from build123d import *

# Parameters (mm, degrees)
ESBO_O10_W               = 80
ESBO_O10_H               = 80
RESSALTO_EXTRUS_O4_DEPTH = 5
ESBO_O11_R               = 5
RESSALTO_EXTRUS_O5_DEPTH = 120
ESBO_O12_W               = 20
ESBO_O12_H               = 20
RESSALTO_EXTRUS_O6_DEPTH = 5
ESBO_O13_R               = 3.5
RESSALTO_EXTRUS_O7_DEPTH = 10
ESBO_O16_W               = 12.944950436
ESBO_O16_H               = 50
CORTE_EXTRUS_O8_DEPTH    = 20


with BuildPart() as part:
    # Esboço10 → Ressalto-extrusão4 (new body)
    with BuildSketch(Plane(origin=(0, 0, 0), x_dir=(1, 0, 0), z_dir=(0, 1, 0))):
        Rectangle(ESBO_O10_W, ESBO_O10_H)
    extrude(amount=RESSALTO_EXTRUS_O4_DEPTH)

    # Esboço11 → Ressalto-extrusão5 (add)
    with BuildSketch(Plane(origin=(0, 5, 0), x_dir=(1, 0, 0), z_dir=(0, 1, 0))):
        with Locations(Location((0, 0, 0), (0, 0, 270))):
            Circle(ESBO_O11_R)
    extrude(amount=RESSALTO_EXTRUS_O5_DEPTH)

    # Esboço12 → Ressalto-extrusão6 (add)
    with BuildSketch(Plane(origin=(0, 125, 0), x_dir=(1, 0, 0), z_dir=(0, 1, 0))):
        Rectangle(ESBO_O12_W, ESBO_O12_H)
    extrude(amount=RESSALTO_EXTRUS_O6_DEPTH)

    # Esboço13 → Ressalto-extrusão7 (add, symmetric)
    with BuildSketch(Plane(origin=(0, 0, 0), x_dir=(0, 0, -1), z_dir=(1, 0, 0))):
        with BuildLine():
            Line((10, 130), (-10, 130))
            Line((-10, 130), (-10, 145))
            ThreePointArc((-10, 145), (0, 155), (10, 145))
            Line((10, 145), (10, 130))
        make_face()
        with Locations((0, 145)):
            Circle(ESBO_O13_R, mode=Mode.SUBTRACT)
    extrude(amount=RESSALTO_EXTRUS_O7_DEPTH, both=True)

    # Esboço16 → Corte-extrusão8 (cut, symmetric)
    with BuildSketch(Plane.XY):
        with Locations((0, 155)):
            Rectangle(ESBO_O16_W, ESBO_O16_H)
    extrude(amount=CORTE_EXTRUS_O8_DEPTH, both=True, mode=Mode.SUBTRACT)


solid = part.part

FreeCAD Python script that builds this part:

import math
import FreeCAD as App
import Part
import Sketcher
from FreeCAD import Vector

doc = App.newDocument("Part")
params = doc.addObject("Spreadsheet::Sheet", "Params")
for row, (alias, value) in enumerate([
    ("sketch1_width", "80 mm"),
    ("pad1_length", "5 mm"),
    ("sketch2_diameter", "10 mm"),
    ("pad2_length", "120 mm"),
    ("sketch3_width", "20 mm"),
    ("pad3_length", "5 mm"),
    ("sketch4_diameter", "7 mm"),
    ("sketch4_radius", "10 mm"),
    ("sketch4_width", "15 mm"),
    ("pad4_length", "20 mm"),
    ("sketch5_height", "50 mm"),
    ("pocket1_length", "40 mm"),
], start=1):
    params.set(f"A{row}", alias)
    params.set(f"B{row}", "=" + value)
    params.setAlias(f"B{row}", alias)

body = doc.addObject("PartDesign::Body", "Body")

sketch1 = body.newObject("Sketcher::SketchObject", "Sketch")
sketch1.AttachmentSupport = (doc.getObject("XZ_Plane"), [""])
sketch1.MapMode = "FlatFace"
sketch1.addGeometry([
    Part.LineSegment(Vector(-40, -40, 0), Vector(-40, 40, 0)),
    Part.LineSegment(Vector(-40, 40, 0), Vector(40, 40, 0)),
    Part.LineSegment(Vector(40, 40, 0), Vector(40, -40, 0)),
    Part.LineSegment(Vector(40, -40, 0), Vector(-40, -40, 0)),
], False)
sketch1.addConstraint([
    Sketcher.Constraint("Coincident", 0, 2, 1, 1),
    Sketcher.Constraint("Coincident", 1, 2, 2, 1),
    Sketcher.Constraint("Coincident", 2, 2, 3, 1),
    Sketcher.Constraint("Coincident", 3, 2, 0, 1),
    Sketcher.Constraint("Vertical", 0),
    Sketcher.Constraint("Horizontal", 1),
    Sketcher.Constraint("Vertical", 2),
    Sketcher.Constraint("Horizontal", 3),
    Sketcher.Constraint("Symmetric", 0, 2, 2, 2, -1, 1),
    Sketcher.Constraint("Equal", 3, 0),
    Sketcher.Constraint("DistanceX", 1, 1, 1, 2, 80.0),
])
sketch1.setExpression("Constraints[10]", "Params.sketch1_width")
pad1 = body.newObject("PartDesign::Pad", "Pad")
pad1.Profile = sketch1
pad1.setExpression("Length", "Params.pad1_length")
pad1.Reversed = True

sketch2 = body.newObject("Sketcher::SketchObject", "Sketch001")
sketch2.AttachmentSupport = (doc.getObject("XZ_Plane"), [""])
sketch2.MapMode = "FlatFace"
sketch2.AttachmentOffset = App.Placement(Vector(0, 0, -5), App.Rotation())
sketch2.addGeometry(Part.Circle(Vector(0, 0, 0), Vector(0, 0, 1), 5), False)
sketch2.addConstraint([
    Sketcher.Constraint("Coincident", 0, 3, -1, 1),
    Sketcher.Constraint("Diameter", 0, 10.0),
])
sketch2.setExpression("Constraints[1]", "Params.sketch2_diameter")
pad2 = body.newObject("PartDesign::Pad", "Pad001")
pad2.Profile = sketch2
pad2.setExpression("Length", "Params.pad2_length")
pad2.Reversed = True

sketch3 = body.newObject("Sketcher::SketchObject", "Sketch002")
sketch3.AttachmentSupport = (doc.getObject("XZ_Plane"), [""])
sketch3.MapMode = "FlatFace"
sketch3.AttachmentOffset = App.Placement(Vector(0, 0, -125), App.Rotation())
sketch3.addGeometry([
    Part.LineSegment(Vector(-10, -10, 0), Vector(-10, 10, 0)),
    Part.LineSegment(Vector(-10, 10, 0), Vector(10, 10, 0)),
    Part.LineSegment(Vector(10, 10, 0), Vector(10, -10, 0)),
    Part.LineSegment(Vector(10, -10, 0), Vector(-10, -10, 0)),
], False)
sketch3.addConstraint([
    Sketcher.Constraint("Coincident", 0, 2, 1, 1),
    Sketcher.Constraint("Coincident", 1, 2, 2, 1),
    Sketcher.Constraint("Coincident", 2, 2, 3, 1),
    Sketcher.Constraint("Coincident", 3, 2, 0, 1),
    Sketcher.Constraint("Vertical", 0),
    Sketcher.Constraint("Horizontal", 1),
    Sketcher.Constraint("Vertical", 2),
    Sketcher.Constraint("Horizontal", 3),
    Sketcher.Constraint("Symmetric", 0, 2, 2, 2, -1, 1),
    Sketcher.Constraint("Equal", 3, 0),
    Sketcher.Constraint("DistanceX", 1, 1, 1, 2, 20.0),
])
sketch3.setExpression("Constraints[10]", "Params.sketch3_width")
pad3 = body.newObject("PartDesign::Pad", "Pad002")
pad3.Profile = sketch3
pad3.setExpression("Length", "Params.pad3_length")
pad3.Reversed = True

sketch4 = body.newObject("Sketcher::SketchObject", "Sketch003")
sketch4.AttachmentSupport = (doc.getObject("YZ_Plane"), [""])
sketch4.MapMode = "FlatFace"
sketch4.addGeometry([
    Part.LineSegment(Vector(130, 10, 0), Vector(130, -10, 0)),
    Part.LineSegment(Vector(130, -10, 0), Vector(145, -10, 0)),
    Part.ArcOfCircle(Part.Circle(Vector(145, 0, 0), Vector(0, 0, 1), 10), math.radians(-90), math.radians(90)),
    Part.LineSegment(Vector(145, 10, 0), Vector(130, 10, 0)),
    Part.Circle(Vector(145, 0, 0), Vector(0, 0, 1), 3.5),
], False)
sketch4.addConstraint([
    Sketcher.Constraint("Coincident", 0, 2, 1, 1),
    Sketcher.Constraint("Tangent", 1, 2, 2, 1),
    Sketcher.Constraint("Tangent", 2, 2, 3, 1),
    Sketcher.Constraint("Coincident", 3, 2, 0, 1),
    Sketcher.Constraint("Vertical", 0),
    Sketcher.Constraint("Horizontal", 1),
    Sketcher.Constraint("Horizontal", 3),
    Sketcher.Constraint("Coincident", 4, 3, 2, 3),
    Sketcher.Constraint("PointOnObject", 2, 3, -1),
    Sketcher.Constraint("Diameter", 4, 7.0),
    Sketcher.Constraint("Radius", 2, 10.0),
    Sketcher.Constraint("DistanceX", 1, 1, 1, 2, 15.0),
    Sketcher.Constraint("DistanceX", -1, 1, 2, 3, 145.0),
])
sketch4.setExpression("Constraints[9]", "Params.sketch4_diameter")
sketch4.setExpression("Constraints[10]", "Params.sketch4_radius")
sketch4.setExpression("Constraints[11]", "Params.sketch4_width")
pad4 = body.newObject("PartDesign::Pad", "Pad003")
pad4.Profile = sketch4
pad4.setExpression("Length", "Params.pad4_length")
pad4.Midplane = True

sketch5 = body.newObject("Sketcher::SketchObject", "Sketch004")
sketch5.AttachmentSupport = (doc.getObject("XY_Plane"), [""])
sketch5.MapMode = "FlatFace"
sketch5.addGeometry([
    Part.LineSegment(Vector(-6, 180, 0), Vector(-6, 130, 0)),
    Part.LineSegment(Vector(-6, 130, 0), Vector(6, 130, 0)),
    Part.LineSegment(Vector(6, 130, 0), Vector(6, 180, 0)),
    Part.LineSegment(Vector(6, 180, 0), Vector(-6, 180, 0)),
], False)
sketch5.addConstraint([
    Sketcher.Constraint("Coincident", 0, 2, 1, 1),
    Sketcher.Constraint("Coincident", 1, 2, 2, 1),
    Sketcher.Constraint("Coincident", 2, 2, 3, 1),
    Sketcher.Constraint("Coincident", 3, 2, 0, 1),
    Sketcher.Constraint("Vertical", 0),
    Sketcher.Constraint("Horizontal", 1),
    Sketcher.Constraint("Vertical", 2),
    Sketcher.Constraint("Horizontal", 3),
    Sketcher.Constraint("DistanceY", 0, 2, 0, 1, 50.0),
    Sketcher.Constraint("DistanceY", -1, 1, 0, 2, 130.0),
    Sketcher.Constraint("DistanceX", 1, 1, 1, 2, 12.94495),
    Sketcher.Constraint("DistanceX", 0, 2, -1, 1, 6.472475),
])
sketch5.setExpression("Constraints[8]", "Params.sketch5_height")
pocket1 = body.newObject("PartDesign::Pocket", "Pocket")
pocket1.Profile = sketch5
pocket1.setExpression("Length", "Params.pocket1_length")
pocket1.Midplane = True

doc.recompute()
